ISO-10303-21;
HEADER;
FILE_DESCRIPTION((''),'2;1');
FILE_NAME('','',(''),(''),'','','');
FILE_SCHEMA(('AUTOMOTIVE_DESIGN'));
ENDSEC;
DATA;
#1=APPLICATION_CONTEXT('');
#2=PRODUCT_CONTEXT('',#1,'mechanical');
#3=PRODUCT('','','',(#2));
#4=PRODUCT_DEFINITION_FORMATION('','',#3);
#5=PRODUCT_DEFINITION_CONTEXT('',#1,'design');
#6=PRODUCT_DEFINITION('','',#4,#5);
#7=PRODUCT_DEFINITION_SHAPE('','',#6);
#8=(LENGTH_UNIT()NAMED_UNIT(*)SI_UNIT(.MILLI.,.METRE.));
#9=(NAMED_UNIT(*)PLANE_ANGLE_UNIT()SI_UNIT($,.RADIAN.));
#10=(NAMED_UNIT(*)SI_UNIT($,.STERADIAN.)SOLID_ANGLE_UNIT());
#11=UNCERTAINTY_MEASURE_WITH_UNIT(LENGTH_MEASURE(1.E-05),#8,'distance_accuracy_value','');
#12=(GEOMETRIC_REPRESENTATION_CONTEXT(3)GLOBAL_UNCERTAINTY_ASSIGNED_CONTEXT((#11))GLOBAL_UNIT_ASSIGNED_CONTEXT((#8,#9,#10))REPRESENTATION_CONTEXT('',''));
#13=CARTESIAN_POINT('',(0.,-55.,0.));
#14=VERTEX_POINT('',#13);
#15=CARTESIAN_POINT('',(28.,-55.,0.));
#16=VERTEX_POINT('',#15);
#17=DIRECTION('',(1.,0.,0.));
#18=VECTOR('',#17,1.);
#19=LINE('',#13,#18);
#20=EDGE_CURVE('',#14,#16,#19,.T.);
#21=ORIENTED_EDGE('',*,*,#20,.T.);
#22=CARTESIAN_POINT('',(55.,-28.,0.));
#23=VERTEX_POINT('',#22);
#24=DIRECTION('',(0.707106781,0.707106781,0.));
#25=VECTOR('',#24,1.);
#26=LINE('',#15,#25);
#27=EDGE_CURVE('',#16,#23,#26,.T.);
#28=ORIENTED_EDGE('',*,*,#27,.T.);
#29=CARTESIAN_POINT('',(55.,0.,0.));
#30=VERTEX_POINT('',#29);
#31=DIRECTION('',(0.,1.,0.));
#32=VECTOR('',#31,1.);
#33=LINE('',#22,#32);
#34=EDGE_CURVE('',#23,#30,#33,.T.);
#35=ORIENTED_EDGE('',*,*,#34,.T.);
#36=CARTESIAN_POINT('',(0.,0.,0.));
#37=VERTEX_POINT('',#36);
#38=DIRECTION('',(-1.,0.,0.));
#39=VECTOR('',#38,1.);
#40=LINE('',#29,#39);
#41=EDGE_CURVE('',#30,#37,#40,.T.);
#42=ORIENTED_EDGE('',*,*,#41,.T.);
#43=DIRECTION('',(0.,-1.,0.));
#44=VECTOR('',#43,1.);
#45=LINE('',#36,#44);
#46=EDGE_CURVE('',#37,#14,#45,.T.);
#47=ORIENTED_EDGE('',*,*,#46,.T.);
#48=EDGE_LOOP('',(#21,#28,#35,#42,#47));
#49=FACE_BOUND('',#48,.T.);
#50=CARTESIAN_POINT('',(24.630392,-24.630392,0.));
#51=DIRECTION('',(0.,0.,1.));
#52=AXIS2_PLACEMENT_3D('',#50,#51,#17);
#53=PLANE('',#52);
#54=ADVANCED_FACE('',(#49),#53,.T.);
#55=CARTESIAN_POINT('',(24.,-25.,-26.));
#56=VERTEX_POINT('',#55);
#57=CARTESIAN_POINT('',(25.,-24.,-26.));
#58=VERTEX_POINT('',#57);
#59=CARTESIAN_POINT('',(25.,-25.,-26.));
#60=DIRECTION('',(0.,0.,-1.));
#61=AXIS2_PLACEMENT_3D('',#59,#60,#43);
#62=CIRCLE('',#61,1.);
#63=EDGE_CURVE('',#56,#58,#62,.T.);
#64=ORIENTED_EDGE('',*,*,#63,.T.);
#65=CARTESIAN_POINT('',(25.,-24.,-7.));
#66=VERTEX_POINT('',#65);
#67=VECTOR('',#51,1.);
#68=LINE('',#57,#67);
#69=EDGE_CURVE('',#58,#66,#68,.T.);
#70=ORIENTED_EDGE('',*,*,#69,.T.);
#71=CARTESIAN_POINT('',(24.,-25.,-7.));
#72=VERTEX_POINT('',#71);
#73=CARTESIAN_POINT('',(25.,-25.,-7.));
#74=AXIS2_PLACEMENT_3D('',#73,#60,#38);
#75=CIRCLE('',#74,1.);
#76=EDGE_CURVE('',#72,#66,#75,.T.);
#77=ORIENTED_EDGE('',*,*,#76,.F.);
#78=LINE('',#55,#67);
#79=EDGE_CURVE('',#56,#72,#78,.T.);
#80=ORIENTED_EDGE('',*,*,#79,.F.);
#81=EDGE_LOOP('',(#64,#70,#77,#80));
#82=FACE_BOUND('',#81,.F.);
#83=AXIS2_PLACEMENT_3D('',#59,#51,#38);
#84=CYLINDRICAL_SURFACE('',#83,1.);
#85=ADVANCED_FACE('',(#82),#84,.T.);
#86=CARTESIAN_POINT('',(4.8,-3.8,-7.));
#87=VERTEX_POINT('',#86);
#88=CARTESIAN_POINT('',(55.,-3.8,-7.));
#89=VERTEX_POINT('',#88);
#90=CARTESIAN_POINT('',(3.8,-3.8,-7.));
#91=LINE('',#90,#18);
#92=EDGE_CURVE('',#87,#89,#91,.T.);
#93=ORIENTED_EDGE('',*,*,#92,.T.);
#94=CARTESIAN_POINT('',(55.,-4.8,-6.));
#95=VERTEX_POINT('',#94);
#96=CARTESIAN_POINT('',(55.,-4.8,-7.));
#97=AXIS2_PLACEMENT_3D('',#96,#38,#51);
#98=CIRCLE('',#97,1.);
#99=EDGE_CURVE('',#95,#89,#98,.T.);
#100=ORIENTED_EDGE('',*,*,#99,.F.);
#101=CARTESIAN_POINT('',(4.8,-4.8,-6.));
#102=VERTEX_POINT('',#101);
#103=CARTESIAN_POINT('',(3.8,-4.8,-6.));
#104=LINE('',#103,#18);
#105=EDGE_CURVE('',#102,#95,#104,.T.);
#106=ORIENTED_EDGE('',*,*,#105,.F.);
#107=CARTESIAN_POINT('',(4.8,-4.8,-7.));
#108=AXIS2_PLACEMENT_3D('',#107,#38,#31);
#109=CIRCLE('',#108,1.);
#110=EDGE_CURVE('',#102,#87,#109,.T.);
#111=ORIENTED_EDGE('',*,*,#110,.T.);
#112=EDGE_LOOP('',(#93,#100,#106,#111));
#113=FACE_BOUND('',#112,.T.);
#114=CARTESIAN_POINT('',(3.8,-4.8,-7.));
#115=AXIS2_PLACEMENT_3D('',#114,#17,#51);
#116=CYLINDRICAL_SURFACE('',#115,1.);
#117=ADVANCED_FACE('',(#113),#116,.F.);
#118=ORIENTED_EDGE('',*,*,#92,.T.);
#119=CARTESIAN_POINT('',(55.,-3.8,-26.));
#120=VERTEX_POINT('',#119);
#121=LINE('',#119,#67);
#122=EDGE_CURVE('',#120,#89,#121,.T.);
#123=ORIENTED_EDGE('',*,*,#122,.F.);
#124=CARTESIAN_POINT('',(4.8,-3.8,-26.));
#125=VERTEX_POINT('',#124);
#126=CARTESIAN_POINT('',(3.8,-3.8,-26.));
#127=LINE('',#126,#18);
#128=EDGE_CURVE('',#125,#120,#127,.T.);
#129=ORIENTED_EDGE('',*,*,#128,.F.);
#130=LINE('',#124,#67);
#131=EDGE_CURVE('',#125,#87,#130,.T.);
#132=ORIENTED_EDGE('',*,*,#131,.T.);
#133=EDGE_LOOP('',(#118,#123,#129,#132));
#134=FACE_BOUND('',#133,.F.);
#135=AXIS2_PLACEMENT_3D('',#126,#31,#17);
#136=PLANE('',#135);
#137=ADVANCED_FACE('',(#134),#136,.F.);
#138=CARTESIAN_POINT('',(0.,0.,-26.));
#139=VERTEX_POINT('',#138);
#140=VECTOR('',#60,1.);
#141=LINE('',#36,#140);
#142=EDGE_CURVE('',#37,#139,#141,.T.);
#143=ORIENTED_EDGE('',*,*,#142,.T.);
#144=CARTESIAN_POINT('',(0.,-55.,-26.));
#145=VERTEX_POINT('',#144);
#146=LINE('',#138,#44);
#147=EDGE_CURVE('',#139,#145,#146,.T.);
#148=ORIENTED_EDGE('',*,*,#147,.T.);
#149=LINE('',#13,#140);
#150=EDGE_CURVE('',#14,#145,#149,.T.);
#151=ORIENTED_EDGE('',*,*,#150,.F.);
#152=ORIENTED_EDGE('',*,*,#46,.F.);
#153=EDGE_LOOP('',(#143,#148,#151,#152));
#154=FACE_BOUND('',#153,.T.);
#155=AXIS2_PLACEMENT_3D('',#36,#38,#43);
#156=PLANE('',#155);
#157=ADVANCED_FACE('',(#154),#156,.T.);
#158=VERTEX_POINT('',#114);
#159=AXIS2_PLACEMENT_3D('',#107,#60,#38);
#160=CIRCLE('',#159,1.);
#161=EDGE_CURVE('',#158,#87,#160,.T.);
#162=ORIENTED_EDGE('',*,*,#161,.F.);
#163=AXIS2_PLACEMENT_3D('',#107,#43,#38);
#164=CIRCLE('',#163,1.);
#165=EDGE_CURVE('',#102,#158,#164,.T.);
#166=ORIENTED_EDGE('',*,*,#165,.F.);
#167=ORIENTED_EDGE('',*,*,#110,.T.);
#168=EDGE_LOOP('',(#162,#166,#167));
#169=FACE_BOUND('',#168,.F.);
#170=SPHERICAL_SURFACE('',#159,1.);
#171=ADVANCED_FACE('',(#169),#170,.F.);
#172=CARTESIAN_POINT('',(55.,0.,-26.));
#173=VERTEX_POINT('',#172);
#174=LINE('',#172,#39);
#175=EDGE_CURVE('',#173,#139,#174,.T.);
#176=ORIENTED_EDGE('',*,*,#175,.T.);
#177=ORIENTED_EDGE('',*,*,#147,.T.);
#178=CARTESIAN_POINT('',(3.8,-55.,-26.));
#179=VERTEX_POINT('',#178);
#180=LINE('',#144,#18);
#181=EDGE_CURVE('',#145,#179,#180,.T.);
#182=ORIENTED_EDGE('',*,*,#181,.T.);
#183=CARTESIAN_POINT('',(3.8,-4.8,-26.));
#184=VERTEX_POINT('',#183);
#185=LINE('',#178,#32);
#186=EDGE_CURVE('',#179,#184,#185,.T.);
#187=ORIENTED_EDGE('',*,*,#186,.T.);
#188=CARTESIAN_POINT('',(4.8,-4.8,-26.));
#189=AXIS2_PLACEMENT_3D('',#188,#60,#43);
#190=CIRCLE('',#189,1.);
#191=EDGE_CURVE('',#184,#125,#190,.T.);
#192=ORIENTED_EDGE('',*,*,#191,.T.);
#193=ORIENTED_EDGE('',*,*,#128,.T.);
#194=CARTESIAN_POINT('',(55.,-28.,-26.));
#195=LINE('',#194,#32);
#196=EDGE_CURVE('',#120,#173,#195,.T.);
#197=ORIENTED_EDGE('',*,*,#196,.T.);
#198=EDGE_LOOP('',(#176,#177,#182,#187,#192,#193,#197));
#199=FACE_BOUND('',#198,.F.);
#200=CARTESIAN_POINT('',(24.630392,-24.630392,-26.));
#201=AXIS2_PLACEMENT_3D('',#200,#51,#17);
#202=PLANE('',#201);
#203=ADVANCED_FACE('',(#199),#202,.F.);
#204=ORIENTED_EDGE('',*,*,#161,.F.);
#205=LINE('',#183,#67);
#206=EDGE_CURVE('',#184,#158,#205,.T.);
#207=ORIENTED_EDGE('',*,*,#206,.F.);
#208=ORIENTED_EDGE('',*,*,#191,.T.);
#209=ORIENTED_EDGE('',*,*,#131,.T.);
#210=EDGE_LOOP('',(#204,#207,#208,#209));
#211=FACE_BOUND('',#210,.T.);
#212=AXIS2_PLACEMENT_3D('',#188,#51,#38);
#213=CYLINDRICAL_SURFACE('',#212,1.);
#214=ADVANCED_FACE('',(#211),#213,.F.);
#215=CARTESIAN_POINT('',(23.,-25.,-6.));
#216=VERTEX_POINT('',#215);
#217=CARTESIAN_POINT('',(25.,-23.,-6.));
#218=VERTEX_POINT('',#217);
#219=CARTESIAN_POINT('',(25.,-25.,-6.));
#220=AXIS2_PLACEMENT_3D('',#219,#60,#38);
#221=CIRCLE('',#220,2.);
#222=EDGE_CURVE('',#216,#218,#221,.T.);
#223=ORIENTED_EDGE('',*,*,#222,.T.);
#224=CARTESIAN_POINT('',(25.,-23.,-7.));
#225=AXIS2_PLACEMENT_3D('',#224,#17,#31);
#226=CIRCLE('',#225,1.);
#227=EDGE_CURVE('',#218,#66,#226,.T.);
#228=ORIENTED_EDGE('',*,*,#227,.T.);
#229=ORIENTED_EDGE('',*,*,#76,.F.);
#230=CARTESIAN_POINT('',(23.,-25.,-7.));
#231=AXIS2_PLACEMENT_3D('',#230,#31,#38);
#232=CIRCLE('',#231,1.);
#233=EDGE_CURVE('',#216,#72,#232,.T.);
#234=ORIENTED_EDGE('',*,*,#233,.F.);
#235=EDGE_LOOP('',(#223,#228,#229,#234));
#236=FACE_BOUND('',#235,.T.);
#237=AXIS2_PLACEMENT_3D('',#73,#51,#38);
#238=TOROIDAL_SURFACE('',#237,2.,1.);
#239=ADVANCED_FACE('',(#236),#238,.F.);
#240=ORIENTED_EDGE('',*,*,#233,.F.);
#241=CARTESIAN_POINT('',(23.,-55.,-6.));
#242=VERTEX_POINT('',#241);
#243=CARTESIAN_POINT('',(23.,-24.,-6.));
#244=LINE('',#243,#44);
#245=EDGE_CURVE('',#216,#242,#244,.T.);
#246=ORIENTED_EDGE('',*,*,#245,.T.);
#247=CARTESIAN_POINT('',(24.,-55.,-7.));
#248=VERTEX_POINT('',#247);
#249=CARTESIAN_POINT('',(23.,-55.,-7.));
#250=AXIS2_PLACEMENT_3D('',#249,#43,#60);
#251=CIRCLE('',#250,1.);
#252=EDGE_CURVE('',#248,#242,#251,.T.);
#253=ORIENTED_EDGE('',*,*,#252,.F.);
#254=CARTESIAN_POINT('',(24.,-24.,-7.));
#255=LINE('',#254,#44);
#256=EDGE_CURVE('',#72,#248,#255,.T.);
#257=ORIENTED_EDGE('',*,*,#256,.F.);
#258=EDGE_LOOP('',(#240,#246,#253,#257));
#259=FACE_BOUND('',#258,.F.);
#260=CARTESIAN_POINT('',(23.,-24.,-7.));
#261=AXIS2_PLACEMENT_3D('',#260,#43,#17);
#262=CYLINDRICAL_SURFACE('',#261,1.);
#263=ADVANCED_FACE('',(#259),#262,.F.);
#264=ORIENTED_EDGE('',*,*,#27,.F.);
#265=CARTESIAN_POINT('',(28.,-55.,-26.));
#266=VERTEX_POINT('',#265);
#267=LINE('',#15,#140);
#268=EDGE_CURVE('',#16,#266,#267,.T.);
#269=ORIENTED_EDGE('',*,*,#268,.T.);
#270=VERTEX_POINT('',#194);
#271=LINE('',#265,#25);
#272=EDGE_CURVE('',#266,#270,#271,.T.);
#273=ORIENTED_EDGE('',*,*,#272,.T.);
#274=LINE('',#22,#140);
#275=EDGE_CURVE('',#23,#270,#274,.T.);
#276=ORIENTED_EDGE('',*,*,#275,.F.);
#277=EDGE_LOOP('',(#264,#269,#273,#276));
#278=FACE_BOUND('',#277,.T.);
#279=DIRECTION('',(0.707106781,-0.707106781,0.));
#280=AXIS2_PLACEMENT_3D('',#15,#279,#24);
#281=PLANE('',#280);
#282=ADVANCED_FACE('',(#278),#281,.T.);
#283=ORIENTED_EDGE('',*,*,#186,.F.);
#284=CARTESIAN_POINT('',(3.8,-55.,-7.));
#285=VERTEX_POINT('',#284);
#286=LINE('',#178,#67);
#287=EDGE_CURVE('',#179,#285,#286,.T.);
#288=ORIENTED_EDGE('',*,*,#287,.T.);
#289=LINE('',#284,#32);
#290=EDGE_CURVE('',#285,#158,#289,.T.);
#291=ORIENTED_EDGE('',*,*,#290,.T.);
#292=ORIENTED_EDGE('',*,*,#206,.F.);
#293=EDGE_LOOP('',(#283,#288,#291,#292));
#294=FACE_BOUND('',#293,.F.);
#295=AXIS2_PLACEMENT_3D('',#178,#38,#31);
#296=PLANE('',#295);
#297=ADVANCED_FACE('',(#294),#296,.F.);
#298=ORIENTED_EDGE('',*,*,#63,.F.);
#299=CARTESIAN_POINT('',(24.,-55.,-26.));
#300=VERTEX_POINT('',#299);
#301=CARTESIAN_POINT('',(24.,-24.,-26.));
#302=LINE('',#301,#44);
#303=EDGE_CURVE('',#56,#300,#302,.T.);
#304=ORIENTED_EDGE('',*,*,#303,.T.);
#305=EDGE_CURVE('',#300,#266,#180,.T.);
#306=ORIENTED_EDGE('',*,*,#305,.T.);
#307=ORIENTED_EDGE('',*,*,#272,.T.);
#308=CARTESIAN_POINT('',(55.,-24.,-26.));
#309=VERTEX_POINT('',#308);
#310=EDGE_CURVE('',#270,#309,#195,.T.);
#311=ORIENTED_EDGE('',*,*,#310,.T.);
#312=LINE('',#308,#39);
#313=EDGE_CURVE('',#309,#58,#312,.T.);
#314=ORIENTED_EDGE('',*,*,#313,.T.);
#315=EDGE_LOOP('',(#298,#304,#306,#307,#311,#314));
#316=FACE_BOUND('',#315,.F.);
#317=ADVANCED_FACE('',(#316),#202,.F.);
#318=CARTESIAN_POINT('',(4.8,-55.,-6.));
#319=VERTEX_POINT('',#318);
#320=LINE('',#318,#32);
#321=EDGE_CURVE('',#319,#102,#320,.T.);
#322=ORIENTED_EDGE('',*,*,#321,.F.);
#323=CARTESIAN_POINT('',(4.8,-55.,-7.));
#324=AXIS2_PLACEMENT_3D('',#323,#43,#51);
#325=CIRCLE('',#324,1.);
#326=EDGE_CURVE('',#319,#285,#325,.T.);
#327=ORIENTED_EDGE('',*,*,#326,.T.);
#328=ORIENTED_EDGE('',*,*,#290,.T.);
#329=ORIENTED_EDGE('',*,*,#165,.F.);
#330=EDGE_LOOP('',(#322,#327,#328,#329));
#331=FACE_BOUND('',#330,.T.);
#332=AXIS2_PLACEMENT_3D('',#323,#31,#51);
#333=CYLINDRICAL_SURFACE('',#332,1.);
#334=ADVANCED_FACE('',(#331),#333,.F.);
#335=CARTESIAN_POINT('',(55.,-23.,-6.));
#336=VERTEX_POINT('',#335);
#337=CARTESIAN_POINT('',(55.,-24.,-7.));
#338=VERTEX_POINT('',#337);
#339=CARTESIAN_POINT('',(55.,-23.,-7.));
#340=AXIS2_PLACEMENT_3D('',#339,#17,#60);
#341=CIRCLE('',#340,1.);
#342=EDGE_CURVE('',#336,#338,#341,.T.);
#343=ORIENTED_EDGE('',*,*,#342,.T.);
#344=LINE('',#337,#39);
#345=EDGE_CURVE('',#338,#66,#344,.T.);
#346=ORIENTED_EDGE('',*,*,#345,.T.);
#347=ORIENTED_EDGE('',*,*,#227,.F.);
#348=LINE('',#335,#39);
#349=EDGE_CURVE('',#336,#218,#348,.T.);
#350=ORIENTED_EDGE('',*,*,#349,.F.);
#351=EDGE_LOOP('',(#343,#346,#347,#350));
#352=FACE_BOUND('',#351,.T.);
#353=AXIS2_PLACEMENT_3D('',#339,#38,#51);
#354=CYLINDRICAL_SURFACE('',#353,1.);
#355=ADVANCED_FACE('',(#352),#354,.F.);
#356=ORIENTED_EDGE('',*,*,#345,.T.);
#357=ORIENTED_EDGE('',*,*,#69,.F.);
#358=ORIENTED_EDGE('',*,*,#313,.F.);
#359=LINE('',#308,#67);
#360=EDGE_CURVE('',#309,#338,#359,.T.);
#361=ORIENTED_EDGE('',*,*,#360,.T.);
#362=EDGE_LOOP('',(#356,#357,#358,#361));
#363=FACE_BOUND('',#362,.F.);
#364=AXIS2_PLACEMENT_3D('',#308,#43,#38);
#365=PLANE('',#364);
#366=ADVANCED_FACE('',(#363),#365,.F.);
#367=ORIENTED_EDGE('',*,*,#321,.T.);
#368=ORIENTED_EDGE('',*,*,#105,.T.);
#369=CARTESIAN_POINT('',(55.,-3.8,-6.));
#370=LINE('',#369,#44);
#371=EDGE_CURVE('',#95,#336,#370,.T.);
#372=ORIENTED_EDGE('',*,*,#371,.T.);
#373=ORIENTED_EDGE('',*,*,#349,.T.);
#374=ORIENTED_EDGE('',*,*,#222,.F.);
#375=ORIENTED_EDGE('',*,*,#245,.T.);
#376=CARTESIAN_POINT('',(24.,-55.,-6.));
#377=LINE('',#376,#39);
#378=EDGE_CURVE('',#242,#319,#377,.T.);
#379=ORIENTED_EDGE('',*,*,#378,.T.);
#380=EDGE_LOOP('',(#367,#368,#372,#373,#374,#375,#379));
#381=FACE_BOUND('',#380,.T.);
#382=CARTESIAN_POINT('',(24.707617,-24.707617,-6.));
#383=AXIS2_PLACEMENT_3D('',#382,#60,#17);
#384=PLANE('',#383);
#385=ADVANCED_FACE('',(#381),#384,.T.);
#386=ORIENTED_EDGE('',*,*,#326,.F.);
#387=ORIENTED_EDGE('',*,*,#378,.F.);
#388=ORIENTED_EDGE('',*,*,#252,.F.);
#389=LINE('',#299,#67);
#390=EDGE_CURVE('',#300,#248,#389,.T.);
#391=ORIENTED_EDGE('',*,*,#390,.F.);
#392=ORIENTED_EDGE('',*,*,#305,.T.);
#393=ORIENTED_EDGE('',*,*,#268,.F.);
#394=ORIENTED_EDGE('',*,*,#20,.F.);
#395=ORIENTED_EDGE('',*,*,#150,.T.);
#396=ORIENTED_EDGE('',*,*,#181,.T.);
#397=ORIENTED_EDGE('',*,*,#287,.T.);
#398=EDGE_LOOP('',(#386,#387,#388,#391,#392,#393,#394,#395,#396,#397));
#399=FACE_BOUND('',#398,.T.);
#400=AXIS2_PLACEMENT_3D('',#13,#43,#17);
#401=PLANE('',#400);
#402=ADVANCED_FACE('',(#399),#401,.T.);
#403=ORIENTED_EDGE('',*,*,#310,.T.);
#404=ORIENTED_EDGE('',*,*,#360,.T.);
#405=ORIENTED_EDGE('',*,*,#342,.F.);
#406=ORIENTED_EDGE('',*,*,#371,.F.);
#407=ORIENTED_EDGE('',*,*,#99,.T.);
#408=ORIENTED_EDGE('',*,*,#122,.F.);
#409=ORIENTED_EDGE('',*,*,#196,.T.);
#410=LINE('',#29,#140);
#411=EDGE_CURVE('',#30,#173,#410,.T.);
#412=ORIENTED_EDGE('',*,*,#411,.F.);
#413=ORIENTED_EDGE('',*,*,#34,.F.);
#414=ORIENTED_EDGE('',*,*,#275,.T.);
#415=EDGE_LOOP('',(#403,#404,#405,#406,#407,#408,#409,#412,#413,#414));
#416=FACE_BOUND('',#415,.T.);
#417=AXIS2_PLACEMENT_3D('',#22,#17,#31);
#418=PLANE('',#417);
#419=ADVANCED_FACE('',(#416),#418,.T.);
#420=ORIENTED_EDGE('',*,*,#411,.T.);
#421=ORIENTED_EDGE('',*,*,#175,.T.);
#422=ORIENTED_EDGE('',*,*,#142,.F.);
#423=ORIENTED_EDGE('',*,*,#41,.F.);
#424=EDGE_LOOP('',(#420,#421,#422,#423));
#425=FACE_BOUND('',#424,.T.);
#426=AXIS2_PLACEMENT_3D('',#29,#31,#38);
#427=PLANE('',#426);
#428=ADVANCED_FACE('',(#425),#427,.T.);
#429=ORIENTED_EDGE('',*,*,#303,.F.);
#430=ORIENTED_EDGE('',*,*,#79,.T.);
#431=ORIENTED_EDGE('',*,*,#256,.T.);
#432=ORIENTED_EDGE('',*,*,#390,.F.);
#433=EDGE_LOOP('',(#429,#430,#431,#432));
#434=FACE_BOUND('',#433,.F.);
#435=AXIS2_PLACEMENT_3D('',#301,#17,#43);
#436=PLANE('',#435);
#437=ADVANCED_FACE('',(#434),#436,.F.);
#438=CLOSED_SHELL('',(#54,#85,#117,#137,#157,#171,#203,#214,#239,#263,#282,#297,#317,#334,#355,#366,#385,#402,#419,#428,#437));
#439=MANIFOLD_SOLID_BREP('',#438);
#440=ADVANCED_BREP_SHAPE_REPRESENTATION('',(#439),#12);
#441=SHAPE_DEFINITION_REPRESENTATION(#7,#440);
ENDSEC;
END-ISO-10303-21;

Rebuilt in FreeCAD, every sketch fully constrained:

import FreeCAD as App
import Part
import Sketcher
from FreeCAD import Vector
Q = App.Units.Quantity


def edges_at(feature, points):
    """Names of the edges that pass closest to the given points."""
    edges = feature.Shape.Edges
    near = lambda p: min(range(len(edges)), key=lambda i: edges[i].distToShape(Part.Vertex(*p))[0])
    return sorted({f"Edge{near(p) + 1}" for p in points})

doc = App.newDocument("Part")
body = doc.addObject("PartDesign::Body", "Body")

# Sketch on XY plane
sketch1 = body.newObject("Sketcher::SketchObject", "Sketch")
sketch1.AttachmentSupport = (doc.getObject("XY_Plane"), [""])
sketch1.MapMode = "FlatFace"
sketch1.addGeometry([
    Part.LineSegment(Vector(0, 0, 0), Vector(0, -55, 0)),  # 0
    Part.LineSegment(Vector(0, -55, 0), Vector(28, -55, 0)),  # 1
    Part.LineSegment(Vector(28, -55, 0), Vector(55, -28, 0)),  # 2
    Part.LineSegment(Vector(55, -28, 0), Vector(55, 0, 0)),  # 3
    Part.LineSegment(Vector(55, 0, 0), Vector(0, 0, 0)),  # 4
], False)
sketch1.addConstraint([
    Sketcher.Constraint("Coincident", 0, 2, 1, 1),
    Sketcher.Constraint("Coincident", 1, 2, 2, 1),
    Sketcher.Constraint("Coincident", 2, 2, 3, 1),
    Sketcher.Constraint("Coincident", 3, 2, 4, 1),
    Sketcher.Constraint("Coincident", 4, 2, 0, 1),
    Sketcher.Constraint("Vertical", 0),
    Sketcher.Constraint("Horizontal", 1),
    Sketcher.Constraint("Vertical", 3),
    Sketcher.Constraint("Horizontal", 4),
    Sketcher.Constraint("Coincident", 4, 2, -1, 1),
    Sketcher.Constraint("Equal", 4, 0),
    Sketcher.Constraint("Equal", 1, 3),
    Sketcher.Constraint("DistanceX", 1, 1, 1, 2, Q("28 mm")),
    Sketcher.Constraint("DistanceX", 4, 2, 4, 1, Q("55 mm")),
])
pad1 = body.newObject("PartDesign::Pad", "Pad")
pad1.Profile = sketch1
pad1.Length = 26
pad1.Reversed = True

# Sketch on XY plane
sketch2 = body.newObject("Sketcher::SketchObject", "Sketch001")
sketch2.AttachmentSupport = (doc.getObject("XY_Plane"), [""])
sketch2.MapMode = "FlatFace"
sketch2.AttachmentOffset = App.Placement(Vector(0, 0, -26), App.Rotation())
sketch2.addGeometry([
    Part.LineSegment(Vector(24, -55, 0), Vector(4, -55, 0)),  # 0
    Part.LineSegment(Vector(4, -55, 0), Vector(4, -4, 0)),  # 1
    Part.LineSegment(Vector(4, -4, 0), Vector(55, -4, 0)),  # 2
    Part.LineSegment(Vector(55, -4, 0), Vector(55, -24, 0)),  # 3
    Part.LineSegment(Vector(55, -24, 0), Vector(24, -24, 0)),  # 4
    Part.LineSegment(Vector(24, -24, 0), Vector(24, -55, 0)),  # 5
], False)
sketch2.addConstraint([
    Sketcher.Constraint("Coincident", 0, 2, 1, 1),
    Sketcher.Constraint("Coincident", 1, 2, 2, 1),
    Sketcher.Constraint("Coincident", 2, 2, 3, 1),
    Sketcher.Constraint("Coincident", 3, 2, 4, 1),
    Sketcher.Constraint("Coincident", 4, 2, 5, 1),
    Sketcher.Constraint("Coincident", 5, 2, 0, 1),
    Sketcher.Constraint("Horizontal", 0),
    Sketcher.Constraint("Vertical", 1),
    Sketcher.Constraint("Horizontal", 2),
    Sketcher.Constraint("Vertical", 3),
    Sketcher.Constraint("Horizontal", 4),
    Sketcher.Constraint("Vertical", 5),
    Sketcher.Constraint("Equal", 2, 1),
    Sketcher.Constraint("Equal", 0, 3),
    Sketcher.Constraint("DistanceX", 4, 2, 4, 1, Q("31 mm")),
    Sketcher.Constraint("DistanceX", 0, 2, 0, 1, Q("20.2 mm")),
    Sketcher.Constraint("DistanceY", 0, 2, -1, 1, Q("55 mm")),
    Sketcher.Constraint("DistanceX", -1, 1, 2, 2, Q("55 mm")),
])
pocket1 = body.newObject("PartDesign::Pocket", "Pocket")
pocket1.Profile = sketch2
pocket1.Length = 20
pocket1.Reversed = True
doc.recompute()

fillet = body.newObject("PartDesign::Fillet", "Fillet")
fillet.Base = (pocket1, edges_at(pocket1, [
    (3.8, -3.8, -16),
    (3.8, -29.4, -6),
    (29.4, -3.8, -6),
    (24, -39.5, -6),
    (39.5, -24, -6),
    (24, -24, -16),
]))
fillet.Radius = 1

doc.recompute()
